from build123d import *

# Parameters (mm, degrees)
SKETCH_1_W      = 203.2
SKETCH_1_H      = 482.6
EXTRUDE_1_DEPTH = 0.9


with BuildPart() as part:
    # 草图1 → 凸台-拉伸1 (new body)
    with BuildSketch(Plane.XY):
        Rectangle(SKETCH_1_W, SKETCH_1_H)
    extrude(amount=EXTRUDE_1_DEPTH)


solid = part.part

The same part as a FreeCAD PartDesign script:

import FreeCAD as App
import Part
import Sketcher
Q = App.Units.Quantity

doc = App.newDocument("Part")
params = doc.addObject("Spreadsheet::Sheet", "Params")
for row, (alias, value) in enumerate([
    ("sketch1_width", "8 in"),
    ("sketch1_height", "19 in"),
    ("pad1_length", "0.9 mm"),
], start=1):
    params.set(f"A{row}", alias)
    params.set(f"B{row}", "=" + value)
    params.setAlias(f"B{row}", alias)

body = doc.addObject("PartDesign::Body", "Body")

# Sketch on XY plane
sketch1 = body.newObject("Sketcher::SketchObject", "Sketch")
sketch1.AttachmentSupport = (doc.getObject("XY_Plane"), [""])
sketch1.MapMode = "FlatFace"
sketch1.addGeometry(Part.LineSegment(App.Vector(-101.6, 241.3, 0), App.Vector(-101.6, -241.3, 0)), False)
sketch1.addGeometry(Part.LineSegment(App.Vector(-101.6, -241.3, 0), App.Vector(101.6, -241.3, 0)), False)
sketch1.addGeometry(Part.LineSegment(App.Vector(101.6, -241.3, 0), App.Vector(101.6, 241.3, 0)), False)
sketch1.addGeometry(Part.LineSegment(App.Vector(101.6, 241.3, 0), App.Vector(-101.6, 241.3, 0)), False)
sketch1.addConstraint(Sketcher.Constraint("Coincident", 0, 2, 1, 1))
sketch1.addConstraint(Sketcher.Constraint("Coincident", 1, 2, 2, 1))
sketch1.addConstraint(Sketcher.Constraint("Coincident", 2, 2, 3, 1))
sketch1.addConstraint(Sketcher.Constraint("Coincident", 3, 2, 0, 1))
sketch1.addConstraint(Sketcher.Constraint("Vertical", 0))
sketch1.addConstraint(Sketcher.Constraint("Horizontal", 1))
sketch1.addConstraint(Sketcher.Constraint("Vertical", 2))
sketch1.addConstraint(Sketcher.Constraint("Horizontal", 3))
sketch1.addConstraint(Sketcher.Constraint("Symmetric", 0, 2, 2, 2, -1, 1))
sketch1.addConstraint(Sketcher.Constraint("DistanceX", 1, 1, 1, 2, Q("8 in")))
sketch1.addConstraint(Sketcher.Constraint("DistanceY", 0, 2, 0, 1, Q("19 in")))
sketch1.setExpression("Constraints[9]", "Params.sketch1_width")
sketch1.setExpression("Constraints[10]", "Params.sketch1_height")
pad1 = body.newObject("PartDesign::Pad", "Pad")
pad1.Profile = sketch1
pad1.setExpression("Length", "Params.pad1_length")

doc.recompute()
